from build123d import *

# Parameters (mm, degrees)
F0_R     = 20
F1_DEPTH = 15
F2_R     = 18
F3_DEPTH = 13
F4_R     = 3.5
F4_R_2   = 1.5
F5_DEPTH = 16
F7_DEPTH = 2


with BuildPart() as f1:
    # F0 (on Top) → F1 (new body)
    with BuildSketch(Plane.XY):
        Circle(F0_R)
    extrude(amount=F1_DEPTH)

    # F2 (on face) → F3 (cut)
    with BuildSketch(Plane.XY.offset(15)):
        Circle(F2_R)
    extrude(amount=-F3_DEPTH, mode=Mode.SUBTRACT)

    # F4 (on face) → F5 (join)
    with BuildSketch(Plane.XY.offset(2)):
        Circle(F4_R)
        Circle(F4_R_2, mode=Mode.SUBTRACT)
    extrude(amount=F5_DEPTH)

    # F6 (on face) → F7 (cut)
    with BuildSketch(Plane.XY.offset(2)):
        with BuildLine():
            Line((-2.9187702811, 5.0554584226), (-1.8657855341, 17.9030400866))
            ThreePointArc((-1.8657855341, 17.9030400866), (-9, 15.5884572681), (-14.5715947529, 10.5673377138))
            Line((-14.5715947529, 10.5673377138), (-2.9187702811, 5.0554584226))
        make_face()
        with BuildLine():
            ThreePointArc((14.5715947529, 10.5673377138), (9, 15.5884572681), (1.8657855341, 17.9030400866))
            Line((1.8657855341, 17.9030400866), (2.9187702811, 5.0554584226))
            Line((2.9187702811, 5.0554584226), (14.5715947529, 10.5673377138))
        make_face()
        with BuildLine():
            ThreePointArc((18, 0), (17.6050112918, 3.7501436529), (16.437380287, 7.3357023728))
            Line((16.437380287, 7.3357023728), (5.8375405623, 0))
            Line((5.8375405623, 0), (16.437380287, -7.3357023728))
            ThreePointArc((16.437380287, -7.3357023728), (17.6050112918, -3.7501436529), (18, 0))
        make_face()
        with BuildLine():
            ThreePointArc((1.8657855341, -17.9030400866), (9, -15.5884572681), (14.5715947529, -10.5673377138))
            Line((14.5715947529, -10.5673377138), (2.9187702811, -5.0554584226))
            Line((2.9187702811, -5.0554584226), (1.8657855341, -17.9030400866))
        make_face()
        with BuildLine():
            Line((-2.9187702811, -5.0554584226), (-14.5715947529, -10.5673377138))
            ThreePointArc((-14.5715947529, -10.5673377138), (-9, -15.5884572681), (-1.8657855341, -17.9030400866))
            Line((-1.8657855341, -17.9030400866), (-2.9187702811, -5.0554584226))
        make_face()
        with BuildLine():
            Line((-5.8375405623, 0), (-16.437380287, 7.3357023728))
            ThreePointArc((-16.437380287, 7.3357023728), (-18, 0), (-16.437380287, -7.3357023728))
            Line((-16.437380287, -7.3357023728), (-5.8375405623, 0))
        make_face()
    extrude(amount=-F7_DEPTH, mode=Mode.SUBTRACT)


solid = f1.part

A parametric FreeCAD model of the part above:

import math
import FreeCAD as App
import Part
import Sketcher
Q = App.Units.Quantity

doc = App.newDocument("Part")
params = doc.addObject("Spreadsheet::Sheet", "Params")
for row, (alias, value) in enumerate([
    ("sketch1_diameter", "40 mm"),
    ("pad1_length", "15 mm"),
    ("sketch2_diameter", "36 mm"),
    ("pocket1_length", "13 mm"),
    ("sketch3_diameter", "7 mm"),
    ("sketch3_diameter2", "3 mm"),
    ("pad2_length", "16 mm"),
    ("sketch4_radius", "18 mm"),
    ("pocket2_length", "2 mm"),
], start=1):
    params.set(f"A{row}", alias)
    params.set(f"B{row}", "=" + value)
    params.setAlias(f"B{row}", alias)

body = doc.addObject("PartDesign::Body", "Body")

# Sketch on XY plane
sketch1 = body.newObject("Sketcher::SketchObject", "Sketch")
sketch1.AttachmentSupport = (doc.getObject("XY_Plane"), [""])
sketch1.MapMode = "FlatFace"
sketch1.addGeometry(Part.Circle(App.Vector(0, 0, 0), App.Vector(0, 0, 1), 20), False)
sketch1.addConstraint([
    Sketcher.Constraint("Coincident", 0, 3, -1, 1),
    Sketcher.Constraint("Diameter", 0, Q("40 mm")),
])
sketch1.setExpression("Constraints[1]", "Params.sketch1_diameter")
pad1 = body.newObject("PartDesign::Pad", "Pad")
pad1.Profile = sketch1
pad1.setExpression("Length", "Params.pad1_length")

# Sketch on XY plane
sketch2 = body.newObject("Sketcher::SketchObject", "Sketch001")
sketch2.AttachmentSupport = (doc.getObject("XY_Plane"), [""])
sketch2.MapMode = "FlatFace"
sketch2.AttachmentOffset = App.Placement(App.Vector(0, 0, 15), App.Rotation())
sketch2.addGeometry(Part.Circle(App.Vector(0, 0, 0), App.Vector(0, 0, 1), 18), False)
sketch2.addConstraint([
    Sketcher.Constraint("Coincident", 0, 3, -1, 1),
    Sketcher.Constraint("Diameter", 0, Q("36 mm")),
])
sketch2.setExpression("Constraints[1]", "Params.sketch2_diameter")
pocket1 = body.newObject("PartDesign::Pocket", "Pocket")
pocket1.Profile = sketch2
pocket1.setExpression("Length", "Params.pocket1_length")

# Sketch on XY plane
sketch3 = body.newObject("Sketcher::SketchObject", "Sketch002")
sketch3.AttachmentSupport = (doc.getObject("XY_Plane"), [""])
sketch3.MapMode = "FlatFace"
sketch3.AttachmentOffset = App.Placement(App.Vector(0, 0, 2), App.Rotation())
sketch3.addGeometry([
    Part.Circle(App.Vector(0, 0, 0), App.Vector(0, 0, 1), 3.5),
    Part.Circle(App.Vector(0, 0, 0), App.Vector(0, 0, 1), 1.5),
], False)
sketch3.addConstraint([
    Sketcher.Constraint("Coincident", 0, 3, -1, 1),
    Sketcher.Constraint("Coincident", 1, 3, -1, 1),
    Sketcher.Constraint("Diameter", 0, Q("7 mm")),
    Sketcher.Constraint("Diameter", 1, Q("3 mm")),
])
sketch3.setExpression("Constraints[2]", "Params.sketch3_diameter")
sketch3.setExpression("Constraints[3]", "Params.sketch3_diameter2")
pad2 = body.newObject("PartDesign::Pad", "Pad001")
pad2.Profile = sketch3
pad2.setExpression("Length", "Params.pad2_length")

# Sketch on XY plane
sketch4 = body.newObject("Sketcher::SketchObject", "Sketch003")
sketch4.AttachmentSupport = (doc.getObject("XY_Plane"), [""])
sketch4.MapMode = "FlatFace"
sketch4.AttachmentOffset = App.Placement(App.Vector(0, 0, 2), App.Rotation())
sketch4.addGeometry([
    Part.LineSegment(App.Vector(-2.91877, 5.055458, 0), App.Vector(-1.865786, 17.90304, 0)),  # 0
    Part.ArcOfCircle(Part.Circle(App.Vector(0, 0, 0), App.Vector(0, 0, 1), 18), math.radians(95.949667), math.radians(144.050333)),  # 1
    Part.LineSegment(App.Vector(-14.571595, 10.567338, 0), App.Vector(-2.91877, 5.055458, 0)),  # 2
    Part.ArcOfCircle(Part.Circle(App.Vector(0, 0, 0), App.Vector(0, 0, 1), 18), math.radians(35.949667), math.radians(84.050333)),  # 3
    Part.LineSegment(App.Vector(1.865786, 17.90304, 0), App.Vector(2.91877, 5.055458, 0)),  # 4
    Part.LineSegment(App.Vector(2.91877, 5.055458, 0), App.Vector(14.571595, 10.567338, 0)),  # 5
    Part.ArcOfCircle(Part.Circle(App.Vector(0, 0, 0), App.Vector(0, 0, 1), 18), math.radians(0), math.radians(24.050333)),  # 6
    Part.LineSegment(App.Vector(16.43738, 7.335702, 0), App.Vector(5.837541, 0, 0)),  # 7
    Part.LineSegment(App.Vector(5.837541, 0, 0), App.Vector(16.43738, -7.335702, 0)),  # 8
    Part.ArcOfCircle(Part.Circle(App.Vector(0, 0, 0), App.Vector(0, 0, 1), 18), math.radians(-24.050333), math.radians(0)),  # 9
    Part.ArcOfCircle(Part.Circle(App.Vector(0, 0, 0), App.Vector(0, 0, 1), 18), math.radians(-84.050333), math.radians(-35.949667)),  # 10
    Part.LineSegment(App.Vector(14.571595, -10.567338, 0), App.Vector(2.91877, -5.055458, 0)),  # 11
    Part.LineSegment(App.Vector(2.91877, -5.055458, 0), App.Vector(1.865786, -17.90304, 0)),  # 12
    Part.LineSegment(App.Vector(-2.91877, -5.055458, 0), App.Vector(-14.571595, -10.567338, 0)),  # 13
    Part.ArcOfCircle(Part.Circle(App.Vector(0, 0, 0), App.Vector(0, 0, 1), 18), math.radians(-144.050333), math.radians(-95.949667)),  # 14
    Part.LineSegment(App.Vector(-1.865786, -17.90304, 0), App.Vector(-2.91877, -5.055458, 0)),  # 15
    Part.LineSegment(App.Vector(-5.837541, 0, 0), App.Vector(-16.43738, 7.335702, 0)),  # 16
    Part.ArcOfCircle(Part.Circle(App.Vector(0, 0, 0), App.Vector(0, 0, 1), 18), math.radians(155.949667), math.radians(204.050333)),  # 17
    Part.LineSegment(App.Vector(-16.43738, -7.335702, 0), App.Vector(-5.837541, 0, 0)),  # 18
], False)
sketch4.addConstraint([
    Sketcher.Constraint("Coincident", 0, 2, 1, 1),
    Sketcher.Constraint("Coincident", 1, 2, 2, 1),
    Sketcher.Constraint("Coincident", 2, 2, 0, 1),
    Sketcher.Constraint("Coincident", 3, 2, 4, 1),
    Sketcher.Constraint("Coincident", 4, 2, 5, 1),
    Sketcher.Constraint("Coincident", 5, 2, 3, 1),
    Sketcher.Constraint("Coincident", 6, 2, 7, 1),
    Sketcher.Constraint("Coincident", 7, 2, 8, 1),
    Sketcher.Constraint("Coincident", 8, 2, 9, 1),
    Sketcher.Constraint("Tangent", 9, 2, 6, 1),
    Sketcher.Constraint("Coincident", 10, 2, 11, 1),
    Sketcher.Constraint("Coincident", 11, 2, 12, 1),
    Sketcher.Constraint("Coincident", 12, 2, 10, 1),
    Sketcher.Constraint("Coincident", 13, 2, 14, 1),
    Sketcher.Constraint("Coincident", 14, 2, 15, 1),
    Sketcher.Constraint("Coincident", 15, 2, 13, 1),
    Sketcher.Constraint("Coincident", 16, 2, 17, 1),
    Sketcher.Constraint("Coincident", 17, 2, 18, 1),
    Sketcher.Constraint("Coincident", 18, 2, 16, 1),
    Sketcher.Constraint("Coincident", 1, 3, -1, 1),
    Sketcher.Constraint("Coincident", 3, 3, -1, 1),
    Sketcher.Constraint("Coincident", 6, 3, -1, 1),
    Sketcher.Constraint("Coincident", 10, 3, -1, 1),
    Sketcher.Constraint("Coincident", 14, 3, -1, 1),
    Sketcher.Constraint("Coincident", 17, 3, -1, 1),
    Sketcher.Constraint("Equal", 1, 3),
    Sketcher.Constraint("Equal", 3, 6),
    Sketcher.Constraint("Equal", 6, 9),
    Sketcher.Constraint("Equal", 9, 10),
    Sketcher.Constraint("Equal", 10, 14),
    Sketcher.Constraint("Equal", 14, 17),
    Sketcher.Constraint("Symmetric", 2, 2, 11, 2, -1, 1),
    Sketcher.Constraint("Symmetric", 4, 2, 15, 2, -1, 1),
    Sketcher.Constraint("Symmetric", 7, 2, 18, 2, -1, 1),
    Sketcher.Constraint("Symmetric", 2, 2, 4, 2, -2),
    Sketcher.Constraint("PointOnObject", 7, 2, -1),
    Sketcher.Constraint("PointOnObject", 9, 2, -1),
    Sketcher.Constraint("Parallel", 2, 11),
    Sketcher.Constraint("Parallel", 0, 12),
    Sketcher.Constraint("Parallel", 5, 13),
    Sketcher.Constraint("Parallel", 4, 15),
    Sketcher.Constraint("Parallel", 8, 16),
    Sketcher.Constraint("Parallel", 7, 18),
    Sketcher.Constraint("Horizontal", 0, 2, 3, 2),
    Sketcher.Constraint("Horizontal", 1, 2, 5, 2),
    Sketcher.Constraint("Horizontal", 6, 2, 16, 2),
    Sketcher.Constraint("Equal", 0, 2),
    Sketcher.Constraint("Equal", 5, 7),
    Sketcher.Constraint("Radius", 1, Q("18 mm")),
    Sketcher.Constraint("Distance", 0, Q("12.890661 mm")),
    Sketcher.Constraint("DistanceY", -1, 1, 0, 2, Q("17.90304 mm")),
    Sketcher.Constraint("DistanceX", 2, 2, -1, 1, Q("2.91877 mm")),
    Sketcher.Constraint("DistanceX", -1, 1, 6, 2, Q("16.43738 mm")),
])
sketch4.setExpression("Constraints[48]", "Params.sketch4_radius")
pocket2 = body.newObject("PartDesign::Pocket", "Pocket001")
pocket2.Profile = sketch4
pocket2.setExpression("Length", "Params.pocket2_length")

doc.recompute()
